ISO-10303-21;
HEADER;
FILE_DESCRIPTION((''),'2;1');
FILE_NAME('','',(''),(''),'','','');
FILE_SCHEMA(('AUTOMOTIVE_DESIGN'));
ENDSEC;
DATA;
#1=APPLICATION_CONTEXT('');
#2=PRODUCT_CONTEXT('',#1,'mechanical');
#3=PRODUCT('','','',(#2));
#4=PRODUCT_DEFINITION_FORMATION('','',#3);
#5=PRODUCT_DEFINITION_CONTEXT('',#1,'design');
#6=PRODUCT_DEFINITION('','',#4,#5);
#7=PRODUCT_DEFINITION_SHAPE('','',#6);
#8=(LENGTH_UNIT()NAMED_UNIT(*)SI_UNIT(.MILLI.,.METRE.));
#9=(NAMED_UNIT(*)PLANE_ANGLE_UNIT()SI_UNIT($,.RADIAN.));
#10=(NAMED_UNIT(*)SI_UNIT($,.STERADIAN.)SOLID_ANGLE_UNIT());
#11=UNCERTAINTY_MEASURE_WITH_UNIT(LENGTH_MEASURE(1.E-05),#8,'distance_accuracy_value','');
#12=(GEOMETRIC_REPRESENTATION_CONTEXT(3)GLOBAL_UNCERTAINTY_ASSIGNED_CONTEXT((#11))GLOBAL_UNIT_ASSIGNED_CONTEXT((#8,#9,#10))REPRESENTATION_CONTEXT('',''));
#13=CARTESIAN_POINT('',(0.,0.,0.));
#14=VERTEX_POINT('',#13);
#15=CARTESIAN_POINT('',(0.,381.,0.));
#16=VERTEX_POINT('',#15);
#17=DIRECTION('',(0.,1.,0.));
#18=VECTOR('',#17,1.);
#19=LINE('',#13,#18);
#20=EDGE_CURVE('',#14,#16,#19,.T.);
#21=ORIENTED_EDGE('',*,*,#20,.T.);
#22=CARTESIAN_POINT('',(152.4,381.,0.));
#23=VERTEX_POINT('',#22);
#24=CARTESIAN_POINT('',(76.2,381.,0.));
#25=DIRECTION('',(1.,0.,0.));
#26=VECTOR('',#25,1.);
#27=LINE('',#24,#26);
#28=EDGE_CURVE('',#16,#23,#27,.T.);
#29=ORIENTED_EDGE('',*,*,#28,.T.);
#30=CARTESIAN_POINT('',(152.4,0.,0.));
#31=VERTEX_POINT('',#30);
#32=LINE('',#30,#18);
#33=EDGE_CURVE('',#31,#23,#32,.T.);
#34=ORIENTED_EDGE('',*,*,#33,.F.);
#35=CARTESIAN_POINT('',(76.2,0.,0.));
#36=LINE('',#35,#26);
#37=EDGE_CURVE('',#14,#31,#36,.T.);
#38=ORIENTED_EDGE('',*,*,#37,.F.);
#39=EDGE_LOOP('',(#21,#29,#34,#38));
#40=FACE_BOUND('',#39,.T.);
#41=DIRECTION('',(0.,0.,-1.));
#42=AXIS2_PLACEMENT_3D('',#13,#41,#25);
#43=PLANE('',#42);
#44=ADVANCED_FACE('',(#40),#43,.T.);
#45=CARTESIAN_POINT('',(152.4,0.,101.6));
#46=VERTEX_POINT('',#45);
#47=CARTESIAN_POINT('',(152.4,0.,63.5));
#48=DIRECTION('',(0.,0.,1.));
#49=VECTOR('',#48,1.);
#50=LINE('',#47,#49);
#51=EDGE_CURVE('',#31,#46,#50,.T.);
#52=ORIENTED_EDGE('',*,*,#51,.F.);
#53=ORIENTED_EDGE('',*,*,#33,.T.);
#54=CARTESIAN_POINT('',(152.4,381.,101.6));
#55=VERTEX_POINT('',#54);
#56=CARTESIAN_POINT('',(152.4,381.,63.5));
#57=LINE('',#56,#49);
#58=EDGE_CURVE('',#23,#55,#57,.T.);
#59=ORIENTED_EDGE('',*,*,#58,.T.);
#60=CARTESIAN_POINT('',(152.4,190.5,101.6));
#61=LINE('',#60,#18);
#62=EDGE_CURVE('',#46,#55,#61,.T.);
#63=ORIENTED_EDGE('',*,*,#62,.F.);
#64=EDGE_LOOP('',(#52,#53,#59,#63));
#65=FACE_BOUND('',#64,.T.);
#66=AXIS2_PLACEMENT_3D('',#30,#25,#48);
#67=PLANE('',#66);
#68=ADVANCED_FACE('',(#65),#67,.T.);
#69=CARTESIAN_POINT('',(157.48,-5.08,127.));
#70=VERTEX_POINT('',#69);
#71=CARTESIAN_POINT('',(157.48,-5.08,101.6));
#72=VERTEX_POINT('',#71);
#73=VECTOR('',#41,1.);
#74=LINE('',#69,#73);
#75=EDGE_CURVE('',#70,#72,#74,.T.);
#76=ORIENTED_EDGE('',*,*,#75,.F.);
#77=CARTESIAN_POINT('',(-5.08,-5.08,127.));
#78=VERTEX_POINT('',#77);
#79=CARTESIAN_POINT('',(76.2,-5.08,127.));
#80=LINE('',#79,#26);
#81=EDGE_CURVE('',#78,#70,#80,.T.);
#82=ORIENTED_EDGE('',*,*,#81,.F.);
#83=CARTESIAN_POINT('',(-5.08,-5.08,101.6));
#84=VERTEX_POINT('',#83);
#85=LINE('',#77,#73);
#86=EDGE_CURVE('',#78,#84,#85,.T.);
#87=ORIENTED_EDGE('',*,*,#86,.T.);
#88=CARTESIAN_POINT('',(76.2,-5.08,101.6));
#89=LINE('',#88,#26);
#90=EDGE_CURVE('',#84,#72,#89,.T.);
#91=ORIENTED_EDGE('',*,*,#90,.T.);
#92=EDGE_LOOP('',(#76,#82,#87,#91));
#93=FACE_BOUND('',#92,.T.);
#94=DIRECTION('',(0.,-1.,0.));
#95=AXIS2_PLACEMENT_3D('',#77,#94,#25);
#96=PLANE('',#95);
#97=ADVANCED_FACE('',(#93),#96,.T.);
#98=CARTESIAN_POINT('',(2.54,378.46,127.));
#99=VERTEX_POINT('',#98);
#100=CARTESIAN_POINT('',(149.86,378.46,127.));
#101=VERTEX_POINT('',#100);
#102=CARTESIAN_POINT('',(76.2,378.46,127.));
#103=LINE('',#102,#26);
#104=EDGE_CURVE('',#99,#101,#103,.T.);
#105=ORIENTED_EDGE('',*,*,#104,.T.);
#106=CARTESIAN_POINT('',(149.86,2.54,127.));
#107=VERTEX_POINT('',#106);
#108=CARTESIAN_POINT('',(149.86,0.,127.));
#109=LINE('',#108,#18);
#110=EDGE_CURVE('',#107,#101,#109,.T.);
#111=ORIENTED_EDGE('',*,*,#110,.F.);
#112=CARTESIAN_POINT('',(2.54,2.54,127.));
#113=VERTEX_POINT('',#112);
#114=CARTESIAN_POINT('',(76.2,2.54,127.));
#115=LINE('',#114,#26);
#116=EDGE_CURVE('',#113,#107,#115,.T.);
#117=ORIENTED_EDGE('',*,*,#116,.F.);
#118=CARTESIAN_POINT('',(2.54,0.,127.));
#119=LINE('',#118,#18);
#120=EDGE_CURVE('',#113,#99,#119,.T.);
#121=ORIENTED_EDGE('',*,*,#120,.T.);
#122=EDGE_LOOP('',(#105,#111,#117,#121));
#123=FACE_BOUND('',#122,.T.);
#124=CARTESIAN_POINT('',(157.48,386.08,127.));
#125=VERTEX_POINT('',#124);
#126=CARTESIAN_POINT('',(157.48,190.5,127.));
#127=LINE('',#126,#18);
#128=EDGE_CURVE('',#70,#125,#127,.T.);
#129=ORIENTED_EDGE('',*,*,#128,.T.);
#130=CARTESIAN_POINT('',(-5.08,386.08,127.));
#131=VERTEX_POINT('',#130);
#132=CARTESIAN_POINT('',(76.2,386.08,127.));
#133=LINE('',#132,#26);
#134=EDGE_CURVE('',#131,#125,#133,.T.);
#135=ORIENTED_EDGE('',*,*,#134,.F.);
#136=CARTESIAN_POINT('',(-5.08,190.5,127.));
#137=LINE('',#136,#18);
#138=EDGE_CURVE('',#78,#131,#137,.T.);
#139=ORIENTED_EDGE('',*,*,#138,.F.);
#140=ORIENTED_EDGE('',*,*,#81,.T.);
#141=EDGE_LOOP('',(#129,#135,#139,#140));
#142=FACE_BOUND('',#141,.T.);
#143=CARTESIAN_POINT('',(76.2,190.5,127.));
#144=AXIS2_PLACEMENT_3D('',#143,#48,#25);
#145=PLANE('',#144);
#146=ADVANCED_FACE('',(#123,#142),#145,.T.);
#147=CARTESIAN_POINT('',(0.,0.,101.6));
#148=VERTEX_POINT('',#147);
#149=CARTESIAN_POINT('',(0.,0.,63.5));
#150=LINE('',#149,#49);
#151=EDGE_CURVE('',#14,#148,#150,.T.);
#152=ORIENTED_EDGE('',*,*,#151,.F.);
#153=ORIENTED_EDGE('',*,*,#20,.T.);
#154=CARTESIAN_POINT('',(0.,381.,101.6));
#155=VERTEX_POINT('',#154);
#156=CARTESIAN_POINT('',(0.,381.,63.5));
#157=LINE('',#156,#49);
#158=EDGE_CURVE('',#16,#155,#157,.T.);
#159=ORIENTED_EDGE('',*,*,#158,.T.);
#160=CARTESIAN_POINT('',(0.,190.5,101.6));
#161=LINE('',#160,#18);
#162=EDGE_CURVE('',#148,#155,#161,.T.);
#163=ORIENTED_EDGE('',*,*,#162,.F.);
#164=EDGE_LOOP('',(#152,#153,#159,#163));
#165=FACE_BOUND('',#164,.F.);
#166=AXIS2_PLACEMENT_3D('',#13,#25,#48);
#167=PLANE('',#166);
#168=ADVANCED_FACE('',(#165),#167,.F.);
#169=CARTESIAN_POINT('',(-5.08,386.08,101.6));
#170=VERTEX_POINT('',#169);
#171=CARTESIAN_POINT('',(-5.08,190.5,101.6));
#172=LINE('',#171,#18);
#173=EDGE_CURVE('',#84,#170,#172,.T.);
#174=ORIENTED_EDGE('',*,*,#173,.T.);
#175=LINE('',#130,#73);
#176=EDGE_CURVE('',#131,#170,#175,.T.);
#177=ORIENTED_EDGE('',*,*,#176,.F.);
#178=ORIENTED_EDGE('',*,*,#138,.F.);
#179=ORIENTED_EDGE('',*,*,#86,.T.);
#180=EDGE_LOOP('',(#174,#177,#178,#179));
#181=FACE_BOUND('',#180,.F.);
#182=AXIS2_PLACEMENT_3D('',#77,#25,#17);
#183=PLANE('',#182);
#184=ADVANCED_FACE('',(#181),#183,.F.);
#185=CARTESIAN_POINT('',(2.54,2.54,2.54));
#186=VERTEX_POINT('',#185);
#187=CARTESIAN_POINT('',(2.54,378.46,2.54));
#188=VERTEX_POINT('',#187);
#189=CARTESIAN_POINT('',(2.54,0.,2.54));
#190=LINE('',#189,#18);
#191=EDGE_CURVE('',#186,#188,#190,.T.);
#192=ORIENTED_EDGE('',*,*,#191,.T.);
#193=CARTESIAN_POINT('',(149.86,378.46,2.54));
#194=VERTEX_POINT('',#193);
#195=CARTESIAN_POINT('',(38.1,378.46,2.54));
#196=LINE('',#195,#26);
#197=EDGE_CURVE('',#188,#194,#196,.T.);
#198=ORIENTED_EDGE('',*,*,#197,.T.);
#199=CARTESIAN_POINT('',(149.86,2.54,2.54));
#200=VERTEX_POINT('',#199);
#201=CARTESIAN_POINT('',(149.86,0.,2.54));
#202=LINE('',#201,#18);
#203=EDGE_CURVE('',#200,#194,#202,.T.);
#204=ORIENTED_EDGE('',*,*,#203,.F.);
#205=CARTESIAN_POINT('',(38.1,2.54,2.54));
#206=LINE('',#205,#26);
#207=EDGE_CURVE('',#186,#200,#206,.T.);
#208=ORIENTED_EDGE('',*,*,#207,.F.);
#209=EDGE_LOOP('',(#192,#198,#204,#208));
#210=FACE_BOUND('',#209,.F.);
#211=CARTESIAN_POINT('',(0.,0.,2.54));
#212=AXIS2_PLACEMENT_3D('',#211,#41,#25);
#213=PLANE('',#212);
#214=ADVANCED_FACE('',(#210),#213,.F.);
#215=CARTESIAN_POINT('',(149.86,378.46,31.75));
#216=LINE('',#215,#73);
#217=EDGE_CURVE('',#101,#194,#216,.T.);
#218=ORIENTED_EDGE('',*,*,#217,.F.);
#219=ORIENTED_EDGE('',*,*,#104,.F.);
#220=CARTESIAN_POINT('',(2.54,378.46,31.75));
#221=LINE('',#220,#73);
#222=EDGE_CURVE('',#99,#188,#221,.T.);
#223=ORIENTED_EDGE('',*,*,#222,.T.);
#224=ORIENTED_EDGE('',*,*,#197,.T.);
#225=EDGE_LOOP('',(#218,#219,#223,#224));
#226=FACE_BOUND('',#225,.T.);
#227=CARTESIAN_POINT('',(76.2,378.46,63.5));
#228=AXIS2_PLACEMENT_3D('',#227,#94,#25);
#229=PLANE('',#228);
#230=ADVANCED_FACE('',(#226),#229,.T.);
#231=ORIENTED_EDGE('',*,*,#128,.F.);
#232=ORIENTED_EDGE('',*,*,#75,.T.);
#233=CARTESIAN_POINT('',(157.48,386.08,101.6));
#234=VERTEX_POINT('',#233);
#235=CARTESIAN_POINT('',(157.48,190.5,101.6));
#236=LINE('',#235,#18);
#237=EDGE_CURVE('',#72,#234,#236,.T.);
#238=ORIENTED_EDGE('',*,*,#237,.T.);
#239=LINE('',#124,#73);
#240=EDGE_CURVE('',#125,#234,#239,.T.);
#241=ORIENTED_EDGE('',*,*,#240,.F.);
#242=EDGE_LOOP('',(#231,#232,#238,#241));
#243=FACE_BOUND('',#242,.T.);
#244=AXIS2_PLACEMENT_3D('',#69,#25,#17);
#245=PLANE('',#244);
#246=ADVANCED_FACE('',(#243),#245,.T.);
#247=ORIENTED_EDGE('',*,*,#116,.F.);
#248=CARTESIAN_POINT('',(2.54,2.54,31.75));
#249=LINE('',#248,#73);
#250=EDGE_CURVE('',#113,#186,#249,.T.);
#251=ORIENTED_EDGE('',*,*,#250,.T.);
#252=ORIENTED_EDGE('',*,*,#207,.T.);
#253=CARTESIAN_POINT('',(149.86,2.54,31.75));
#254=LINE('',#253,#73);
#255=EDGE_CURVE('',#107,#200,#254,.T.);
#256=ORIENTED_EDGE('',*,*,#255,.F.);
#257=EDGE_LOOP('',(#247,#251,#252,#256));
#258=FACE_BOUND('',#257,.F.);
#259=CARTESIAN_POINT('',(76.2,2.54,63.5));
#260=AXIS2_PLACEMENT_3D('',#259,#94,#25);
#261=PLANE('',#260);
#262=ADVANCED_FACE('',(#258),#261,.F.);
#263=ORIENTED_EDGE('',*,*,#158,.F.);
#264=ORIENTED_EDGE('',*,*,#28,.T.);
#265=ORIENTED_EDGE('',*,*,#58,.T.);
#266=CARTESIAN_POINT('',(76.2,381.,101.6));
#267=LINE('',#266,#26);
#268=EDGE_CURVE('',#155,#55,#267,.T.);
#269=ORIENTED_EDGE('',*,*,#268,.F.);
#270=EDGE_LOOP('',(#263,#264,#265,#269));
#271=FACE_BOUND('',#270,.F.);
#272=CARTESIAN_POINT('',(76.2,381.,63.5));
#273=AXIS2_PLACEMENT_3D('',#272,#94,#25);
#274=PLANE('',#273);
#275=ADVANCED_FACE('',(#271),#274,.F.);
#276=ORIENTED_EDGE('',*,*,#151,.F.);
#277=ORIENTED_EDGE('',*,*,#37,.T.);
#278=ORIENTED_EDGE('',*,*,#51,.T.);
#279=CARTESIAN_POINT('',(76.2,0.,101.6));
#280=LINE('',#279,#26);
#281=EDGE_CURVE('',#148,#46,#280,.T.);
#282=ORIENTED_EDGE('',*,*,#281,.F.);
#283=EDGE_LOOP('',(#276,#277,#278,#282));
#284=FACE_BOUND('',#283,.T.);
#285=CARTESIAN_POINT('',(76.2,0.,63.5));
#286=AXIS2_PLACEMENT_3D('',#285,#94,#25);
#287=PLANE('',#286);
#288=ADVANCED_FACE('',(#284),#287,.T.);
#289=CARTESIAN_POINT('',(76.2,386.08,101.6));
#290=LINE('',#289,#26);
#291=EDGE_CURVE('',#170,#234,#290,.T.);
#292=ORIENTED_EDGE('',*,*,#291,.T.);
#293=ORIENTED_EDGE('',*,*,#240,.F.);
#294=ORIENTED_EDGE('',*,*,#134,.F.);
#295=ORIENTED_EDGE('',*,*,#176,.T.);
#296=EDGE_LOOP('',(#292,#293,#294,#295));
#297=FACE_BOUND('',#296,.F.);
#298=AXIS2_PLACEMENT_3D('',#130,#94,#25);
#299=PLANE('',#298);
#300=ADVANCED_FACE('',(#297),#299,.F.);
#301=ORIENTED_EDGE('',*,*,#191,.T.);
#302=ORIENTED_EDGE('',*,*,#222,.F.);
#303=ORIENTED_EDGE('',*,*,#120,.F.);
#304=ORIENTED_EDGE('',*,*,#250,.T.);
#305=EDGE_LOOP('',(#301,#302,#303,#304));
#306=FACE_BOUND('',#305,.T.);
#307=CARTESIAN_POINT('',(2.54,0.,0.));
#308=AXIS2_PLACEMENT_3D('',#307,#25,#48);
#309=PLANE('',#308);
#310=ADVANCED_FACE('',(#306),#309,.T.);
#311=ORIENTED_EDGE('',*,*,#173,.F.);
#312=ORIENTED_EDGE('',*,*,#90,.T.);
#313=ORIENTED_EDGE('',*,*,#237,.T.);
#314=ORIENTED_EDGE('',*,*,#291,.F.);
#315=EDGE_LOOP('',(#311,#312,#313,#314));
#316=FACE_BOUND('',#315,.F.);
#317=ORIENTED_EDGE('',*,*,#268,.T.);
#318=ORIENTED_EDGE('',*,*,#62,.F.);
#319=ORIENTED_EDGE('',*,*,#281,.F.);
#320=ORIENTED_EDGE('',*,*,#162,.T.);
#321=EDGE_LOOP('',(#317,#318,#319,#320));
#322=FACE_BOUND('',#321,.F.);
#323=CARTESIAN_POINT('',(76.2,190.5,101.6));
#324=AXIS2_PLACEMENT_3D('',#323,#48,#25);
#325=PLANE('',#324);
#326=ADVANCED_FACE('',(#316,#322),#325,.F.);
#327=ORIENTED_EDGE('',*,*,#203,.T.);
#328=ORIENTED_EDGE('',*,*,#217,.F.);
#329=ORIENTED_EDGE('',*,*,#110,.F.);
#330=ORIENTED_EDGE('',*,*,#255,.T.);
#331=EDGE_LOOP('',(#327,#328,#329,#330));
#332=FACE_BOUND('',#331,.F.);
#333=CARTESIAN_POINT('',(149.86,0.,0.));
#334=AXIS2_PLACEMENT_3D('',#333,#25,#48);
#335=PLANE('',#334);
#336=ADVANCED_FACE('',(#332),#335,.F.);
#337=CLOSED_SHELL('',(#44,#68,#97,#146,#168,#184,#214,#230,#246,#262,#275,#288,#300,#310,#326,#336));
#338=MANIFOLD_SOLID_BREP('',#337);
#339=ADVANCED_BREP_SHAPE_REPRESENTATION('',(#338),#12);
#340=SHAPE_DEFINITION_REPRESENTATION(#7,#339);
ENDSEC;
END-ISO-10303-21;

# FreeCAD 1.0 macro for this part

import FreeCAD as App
import Part
import Sketcher
from FreeCAD import Vector
Q = App.Units.Quantity


def faces_at(feature, points):
    """Names of the faces that lie closest to the given points."""
    faces = feature.Shape.Faces
    near = lambda p: min(range(len(faces)), key=lambda i: faces[i].distToShape(Part.Vertex(*p))[0])
    return sorted({f"Face{near(p) + 1}" for p in points})


def add_polygon(sketch, points):
    """Adds a closed chain of lines whose ends are joined by coincident constraints."""
    first, n = sketch.GeometryCount, len(points)
    for a, b in zip(points, points[1:] + points[:1]):
        sketch.addGeometry(Part.LineSegment(App.Vector(*a, 0), App.Vector(*b, 0)), False)
    for i in range(n):
        sketch.addConstraint(Sketcher.Constraint("Coincident", first + i, 2, first + (i + 1) % n, 1))

doc = App.newDocument("Part")
body = doc.addObject("PartDesign::Body", "Body")

sketch1 = body.newObject("Sketcher::SketchObject", "Sketch")
sketch1.AttachmentSupport = (doc.getObject("XZ_Plane"), [""])
sketch1.MapMode = "FlatFace"
add_polygon(sketch1, [(0, 127), (0, 0), (152, 0), (152, 127)])
sketch1.addConstraint([
    Sketcher.Constraint("Vertical", 0),
    Sketcher.Constraint("Horizontal", 1),
    Sketcher.Constraint("Vertical", 2),
    Sketcher.Constraint("Horizontal", 3),
    Sketcher.Constraint("Coincident", 0, 2, -1, 1),
    Sketcher.Constraint("DistanceX", 1, 1, 1, 2, Q("6 in")),
    Sketcher.Constraint("DistanceY", 0, 2, 0, 1, Q("5 in")),
])
pad1 = body.newObject("PartDesign::Pad", "Pad")
pad1.Profile = sketch1
pad1.Length = Q("15 in")
pad1.Reversed = True
doc.recompute()

thickness = body.newObject("PartDesign::Thickness", "Thickness")
thickness.Base = (pad1, faces_at(pad1, [(76.2, 190.5, 127)]))
thickness.Value = Q("0.1 in")
thickness.Reversed = True
thickness.Join = "Arc"

sketch2 = body.newObject("Sketcher::SketchObject", "Sketch001")
sketch2.AttachmentSupport = (doc.getObject("XY_Plane"), [""])
sketch2.MapMode = "FlatFace"
sketch2.AttachmentOffset = App.Placement(Vector(0, 0, 5 * 25.4), App.Rotation())
add_polygon(sketch2, [(-5, 386), (-5, -5), (157, -5), (157, 386)])
add_polygon(sketch2, [(152, 0), (0, 0), (0, 381), (152, 381)])
sketch2.addConstraint([
    Sketcher.Constraint("Vertical", 0),
    Sketcher.Constraint("Horizontal", 1),
    Sketcher.Constraint("Vertical", 2),
    Sketcher.Constraint("Horizontal", 3),
    Sketcher.Constraint("Horizontal", 4),
    Sketcher.Constraint("Vertical", 5),
    Sketcher.Constraint("Horizontal", 6),
    Sketcher.Constraint("Vertical", 7),
    Sketcher.Constraint("Coincident", 4, 2, -1, 1),
    Sketcher.Constraint("DistanceX", 4, 2, 4, 1, Q("6 in")),
    Sketcher.Constraint("DistanceY", 5, 1, 5, 2, Q("15 in")),
    Sketcher.Constraint("DistanceX", 1, 1, 1, 2, Q("6.4 in")),
    Sketcher.Constraint("DistanceY", 0, 2, 0, 1, Q("15.4 in")),
    Sketcher.Constraint("DistanceX", 0, 2, -1, 1, Q("0.2 in")),
    Sketcher.Constraint("DistanceY", 0, 2, -1, 1, Q("0.2 in")),
])
pad2 = body.newObject("PartDesign::Pad", "Pad001")
pad2.Profile = sketch2
pad2.Length = Q("1 in")
pad2.Reversed = True

doc.recompute()
